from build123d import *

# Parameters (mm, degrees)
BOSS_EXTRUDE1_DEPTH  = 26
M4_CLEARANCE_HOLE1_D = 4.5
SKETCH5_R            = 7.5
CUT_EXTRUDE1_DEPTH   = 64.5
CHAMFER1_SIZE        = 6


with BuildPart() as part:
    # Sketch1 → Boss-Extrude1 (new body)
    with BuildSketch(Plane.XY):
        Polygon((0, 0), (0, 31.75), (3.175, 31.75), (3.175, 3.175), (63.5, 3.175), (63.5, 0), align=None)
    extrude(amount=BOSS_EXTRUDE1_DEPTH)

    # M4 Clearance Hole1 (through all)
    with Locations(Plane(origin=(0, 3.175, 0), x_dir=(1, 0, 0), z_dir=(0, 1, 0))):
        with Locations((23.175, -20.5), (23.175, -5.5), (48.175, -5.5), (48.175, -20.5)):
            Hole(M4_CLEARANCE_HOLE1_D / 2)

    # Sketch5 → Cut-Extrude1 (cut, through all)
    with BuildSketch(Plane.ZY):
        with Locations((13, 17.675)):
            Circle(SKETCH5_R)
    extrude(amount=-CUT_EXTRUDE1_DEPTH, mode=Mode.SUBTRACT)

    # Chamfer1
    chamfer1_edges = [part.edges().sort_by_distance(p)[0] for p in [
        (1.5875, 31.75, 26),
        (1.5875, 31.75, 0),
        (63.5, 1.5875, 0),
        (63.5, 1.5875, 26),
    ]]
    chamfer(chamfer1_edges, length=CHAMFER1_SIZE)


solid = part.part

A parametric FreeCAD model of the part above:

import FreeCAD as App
import Part
import Sketcher

V = App.Vector


def edges_at(feature, points):
    """Names of the edges that pass closest to the given points."""
    edges = feature.Shape.Edges
    near = lambda p: min(range(len(edges)), key=lambda i: edges[i].distToShape(Part.Vertex(*p))[0])
    return sorted({f"Edge{near(p) + 1}" for p in points})


def add_polygon(sketch, points):
    """Adds a closed chain of lines whose ends are joined by coincident constraints."""
    first, n = sketch.GeometryCount, len(points)
    for a, b in zip(points, points[1:] + points[:1]):
        sketch.addGeometry(Part.LineSegment(App.Vector(*a, 0), App.Vector(*b, 0)), False)
    for i in range(n):
        sketch.addConstraint(Sketcher.Constraint("Coincident", first + i, 2, first + (i + 1) % n, 1))

doc = App.newDocument("Part")
body = doc.addObject("PartDesign::Body", "Body")

sketch1 = body.newObject("Sketcher::SketchObject", "Sketch")
sketch1.AttachmentSupport = (doc.getObject("XY_Plane"), [""])
sketch1.MapMode = "FlatFace"
add_polygon(sketch1, [(0, 31.8), (0, 0), (63.5, 0), (63.5, 3.2), (3.2, 3.2), (3.2, 31.8)])
sketch1.addConstraint(Sketcher.Constraint("Vertical", 0))
sketch1.addConstraint(Sketcher.Constraint("Horizontal", 1))
sketch1.addConstraint(Sketcher.Constraint("Vertical", 2))
sketch1.addConstraint(Sketcher.Constraint("Horizontal", 3))
sketch1.addConstraint(Sketcher.Constraint("Vertical", 4))
sketch1.addConstraint(Sketcher.Constraint("Horizontal", 5))
sketch1.addConstraint(Sketcher.Constraint("Coincident", 0, 2, -1, 1))
sketch1.addConstraint(Sketcher.Constraint("Equal", 5, 2))
sketch1.addConstraint(Sketcher.Constraint("DistanceX", 1, 1, 1, 2, 63.5))
sketch1.addConstraint(Sketcher.Constraint("DistanceY", 0, 2, 0, 1, 31.75))
sketch1.addConstraint(Sketcher.Constraint("DistanceX", 3, 2, 3, 1, 60.325))
pad1 = body.newObject("PartDesign::Pad", "Pad")
pad1.Profile = sketch1
pad1.Length = 26

sketch2 = body.newObject("Sketcher::SketchObject", "Sketch001")
sketch2.AttachmentSupport = (doc.getObject("XZ_Plane"), [""])
sketch2.MapMode = "FlatFace"
sketch2.AttachmentOffset = App.Placement(V(0, 0, -3.175), App.Rotation())
sketch2.addGeometry(Part.Circle(V(23.2, 20.5, 0), V(0, 0, 1), 2.2), False)
sketch2.addGeometry(Part.Circle(V(23.2, 5.5, 0), V(0, 0, 1), 2.2), False)
sketch2.addGeometry(Part.Circle(V(48.2, 5.5, 0), V(0, 0, 1), 2.2), False)
sketch2.addGeometry(Part.Circle(V(48.2, 20.5, 0), V(0, 0, 1), 2.2), False)
sketch2.addConstraint(Sketcher.Constraint("Equal", 0, 1))
sketch2.addConstraint(Sketcher.Constraint("Equal", 1, 2))
sketch2.addConstraint(Sketcher.Constraint("Equal", 2, 3))
sketch2.addConstraint(Sketcher.Constraint("Horizontal", 1, 3, 2, 3))
sketch2.addConstraint(Sketcher.Constraint("Horizontal", 0, 3, 3, 3))
sketch2.addConstraint(Sketcher.Constraint("Vertical", 0, 3, 1, 3))
sketch2.addConstraint(Sketcher.Constraint("Vertical", 2, 3, 3, 3))
sketch2.addConstraint(Sketcher.Constraint("Diameter", 0, 4.5))
sketch2.addConstraint(Sketcher.Constraint("DistanceY", 1, 3, 0, 3, 15.0))
sketch2.addConstraint(Sketcher.Constraint("DistanceX", 1, 3, 2, 3, 25.0))
sketch2.addConstraint(Sketcher.Constraint("DistanceY", -1, 1, 0, 3, 20.5))
sketch2.addConstraint(Sketcher.Constraint("DistanceX", -1, 1, 0, 3, 23.175))
doc.recompute()
hole = body.newObject("PartDesign::Hole", "Hole")
hole.Profile = sketch2
hole.ThreadType = "None"
hole.Diameter = 4.5
hole.DepthType = "ThroughAll"
hole.Reversed = True

sketch3 = body.newObject("Sketcher::SketchObject", "Sketch002")
sketch3.AttachmentSupport = (doc.getObject("YZ_Plane"), [""])
sketch3.MapMode = "FlatFace"
sketch3.addGeometry(Part.Circle(V(18, 13, 0), V(0, 0, 1), 8), False)
sketch3.addConstraint(Sketcher.Constraint("Diameter", 0, 15.0))
sketch3.addConstraint(Sketcher.Constraint("DistanceY", -1, 1, 0, 3, 13.0))
sketch3.addConstraint(Sketcher.Constraint("DistanceX", -1, 1, 0, 3, 17.675))
pocket1 = body.newObject("PartDesign::Pocket", "Pocket")
pocket1.Profile = sketch3
pocket1.Type = "ThroughAll"
pocket1.Reversed = True
doc.recompute()

chamfer = body.newObject("PartDesign::Chamfer", "Chamfer")
chamfer.Base = (pocket1, edges_at(pocket1, [
    (1.587, 31.75, 26),
    (1.587, 31.75, 0),
    (63.5, 1.587, 0),
    (63.5, 1.587, 26),
]))
chamfer.Size = 6

doc.recompute()
